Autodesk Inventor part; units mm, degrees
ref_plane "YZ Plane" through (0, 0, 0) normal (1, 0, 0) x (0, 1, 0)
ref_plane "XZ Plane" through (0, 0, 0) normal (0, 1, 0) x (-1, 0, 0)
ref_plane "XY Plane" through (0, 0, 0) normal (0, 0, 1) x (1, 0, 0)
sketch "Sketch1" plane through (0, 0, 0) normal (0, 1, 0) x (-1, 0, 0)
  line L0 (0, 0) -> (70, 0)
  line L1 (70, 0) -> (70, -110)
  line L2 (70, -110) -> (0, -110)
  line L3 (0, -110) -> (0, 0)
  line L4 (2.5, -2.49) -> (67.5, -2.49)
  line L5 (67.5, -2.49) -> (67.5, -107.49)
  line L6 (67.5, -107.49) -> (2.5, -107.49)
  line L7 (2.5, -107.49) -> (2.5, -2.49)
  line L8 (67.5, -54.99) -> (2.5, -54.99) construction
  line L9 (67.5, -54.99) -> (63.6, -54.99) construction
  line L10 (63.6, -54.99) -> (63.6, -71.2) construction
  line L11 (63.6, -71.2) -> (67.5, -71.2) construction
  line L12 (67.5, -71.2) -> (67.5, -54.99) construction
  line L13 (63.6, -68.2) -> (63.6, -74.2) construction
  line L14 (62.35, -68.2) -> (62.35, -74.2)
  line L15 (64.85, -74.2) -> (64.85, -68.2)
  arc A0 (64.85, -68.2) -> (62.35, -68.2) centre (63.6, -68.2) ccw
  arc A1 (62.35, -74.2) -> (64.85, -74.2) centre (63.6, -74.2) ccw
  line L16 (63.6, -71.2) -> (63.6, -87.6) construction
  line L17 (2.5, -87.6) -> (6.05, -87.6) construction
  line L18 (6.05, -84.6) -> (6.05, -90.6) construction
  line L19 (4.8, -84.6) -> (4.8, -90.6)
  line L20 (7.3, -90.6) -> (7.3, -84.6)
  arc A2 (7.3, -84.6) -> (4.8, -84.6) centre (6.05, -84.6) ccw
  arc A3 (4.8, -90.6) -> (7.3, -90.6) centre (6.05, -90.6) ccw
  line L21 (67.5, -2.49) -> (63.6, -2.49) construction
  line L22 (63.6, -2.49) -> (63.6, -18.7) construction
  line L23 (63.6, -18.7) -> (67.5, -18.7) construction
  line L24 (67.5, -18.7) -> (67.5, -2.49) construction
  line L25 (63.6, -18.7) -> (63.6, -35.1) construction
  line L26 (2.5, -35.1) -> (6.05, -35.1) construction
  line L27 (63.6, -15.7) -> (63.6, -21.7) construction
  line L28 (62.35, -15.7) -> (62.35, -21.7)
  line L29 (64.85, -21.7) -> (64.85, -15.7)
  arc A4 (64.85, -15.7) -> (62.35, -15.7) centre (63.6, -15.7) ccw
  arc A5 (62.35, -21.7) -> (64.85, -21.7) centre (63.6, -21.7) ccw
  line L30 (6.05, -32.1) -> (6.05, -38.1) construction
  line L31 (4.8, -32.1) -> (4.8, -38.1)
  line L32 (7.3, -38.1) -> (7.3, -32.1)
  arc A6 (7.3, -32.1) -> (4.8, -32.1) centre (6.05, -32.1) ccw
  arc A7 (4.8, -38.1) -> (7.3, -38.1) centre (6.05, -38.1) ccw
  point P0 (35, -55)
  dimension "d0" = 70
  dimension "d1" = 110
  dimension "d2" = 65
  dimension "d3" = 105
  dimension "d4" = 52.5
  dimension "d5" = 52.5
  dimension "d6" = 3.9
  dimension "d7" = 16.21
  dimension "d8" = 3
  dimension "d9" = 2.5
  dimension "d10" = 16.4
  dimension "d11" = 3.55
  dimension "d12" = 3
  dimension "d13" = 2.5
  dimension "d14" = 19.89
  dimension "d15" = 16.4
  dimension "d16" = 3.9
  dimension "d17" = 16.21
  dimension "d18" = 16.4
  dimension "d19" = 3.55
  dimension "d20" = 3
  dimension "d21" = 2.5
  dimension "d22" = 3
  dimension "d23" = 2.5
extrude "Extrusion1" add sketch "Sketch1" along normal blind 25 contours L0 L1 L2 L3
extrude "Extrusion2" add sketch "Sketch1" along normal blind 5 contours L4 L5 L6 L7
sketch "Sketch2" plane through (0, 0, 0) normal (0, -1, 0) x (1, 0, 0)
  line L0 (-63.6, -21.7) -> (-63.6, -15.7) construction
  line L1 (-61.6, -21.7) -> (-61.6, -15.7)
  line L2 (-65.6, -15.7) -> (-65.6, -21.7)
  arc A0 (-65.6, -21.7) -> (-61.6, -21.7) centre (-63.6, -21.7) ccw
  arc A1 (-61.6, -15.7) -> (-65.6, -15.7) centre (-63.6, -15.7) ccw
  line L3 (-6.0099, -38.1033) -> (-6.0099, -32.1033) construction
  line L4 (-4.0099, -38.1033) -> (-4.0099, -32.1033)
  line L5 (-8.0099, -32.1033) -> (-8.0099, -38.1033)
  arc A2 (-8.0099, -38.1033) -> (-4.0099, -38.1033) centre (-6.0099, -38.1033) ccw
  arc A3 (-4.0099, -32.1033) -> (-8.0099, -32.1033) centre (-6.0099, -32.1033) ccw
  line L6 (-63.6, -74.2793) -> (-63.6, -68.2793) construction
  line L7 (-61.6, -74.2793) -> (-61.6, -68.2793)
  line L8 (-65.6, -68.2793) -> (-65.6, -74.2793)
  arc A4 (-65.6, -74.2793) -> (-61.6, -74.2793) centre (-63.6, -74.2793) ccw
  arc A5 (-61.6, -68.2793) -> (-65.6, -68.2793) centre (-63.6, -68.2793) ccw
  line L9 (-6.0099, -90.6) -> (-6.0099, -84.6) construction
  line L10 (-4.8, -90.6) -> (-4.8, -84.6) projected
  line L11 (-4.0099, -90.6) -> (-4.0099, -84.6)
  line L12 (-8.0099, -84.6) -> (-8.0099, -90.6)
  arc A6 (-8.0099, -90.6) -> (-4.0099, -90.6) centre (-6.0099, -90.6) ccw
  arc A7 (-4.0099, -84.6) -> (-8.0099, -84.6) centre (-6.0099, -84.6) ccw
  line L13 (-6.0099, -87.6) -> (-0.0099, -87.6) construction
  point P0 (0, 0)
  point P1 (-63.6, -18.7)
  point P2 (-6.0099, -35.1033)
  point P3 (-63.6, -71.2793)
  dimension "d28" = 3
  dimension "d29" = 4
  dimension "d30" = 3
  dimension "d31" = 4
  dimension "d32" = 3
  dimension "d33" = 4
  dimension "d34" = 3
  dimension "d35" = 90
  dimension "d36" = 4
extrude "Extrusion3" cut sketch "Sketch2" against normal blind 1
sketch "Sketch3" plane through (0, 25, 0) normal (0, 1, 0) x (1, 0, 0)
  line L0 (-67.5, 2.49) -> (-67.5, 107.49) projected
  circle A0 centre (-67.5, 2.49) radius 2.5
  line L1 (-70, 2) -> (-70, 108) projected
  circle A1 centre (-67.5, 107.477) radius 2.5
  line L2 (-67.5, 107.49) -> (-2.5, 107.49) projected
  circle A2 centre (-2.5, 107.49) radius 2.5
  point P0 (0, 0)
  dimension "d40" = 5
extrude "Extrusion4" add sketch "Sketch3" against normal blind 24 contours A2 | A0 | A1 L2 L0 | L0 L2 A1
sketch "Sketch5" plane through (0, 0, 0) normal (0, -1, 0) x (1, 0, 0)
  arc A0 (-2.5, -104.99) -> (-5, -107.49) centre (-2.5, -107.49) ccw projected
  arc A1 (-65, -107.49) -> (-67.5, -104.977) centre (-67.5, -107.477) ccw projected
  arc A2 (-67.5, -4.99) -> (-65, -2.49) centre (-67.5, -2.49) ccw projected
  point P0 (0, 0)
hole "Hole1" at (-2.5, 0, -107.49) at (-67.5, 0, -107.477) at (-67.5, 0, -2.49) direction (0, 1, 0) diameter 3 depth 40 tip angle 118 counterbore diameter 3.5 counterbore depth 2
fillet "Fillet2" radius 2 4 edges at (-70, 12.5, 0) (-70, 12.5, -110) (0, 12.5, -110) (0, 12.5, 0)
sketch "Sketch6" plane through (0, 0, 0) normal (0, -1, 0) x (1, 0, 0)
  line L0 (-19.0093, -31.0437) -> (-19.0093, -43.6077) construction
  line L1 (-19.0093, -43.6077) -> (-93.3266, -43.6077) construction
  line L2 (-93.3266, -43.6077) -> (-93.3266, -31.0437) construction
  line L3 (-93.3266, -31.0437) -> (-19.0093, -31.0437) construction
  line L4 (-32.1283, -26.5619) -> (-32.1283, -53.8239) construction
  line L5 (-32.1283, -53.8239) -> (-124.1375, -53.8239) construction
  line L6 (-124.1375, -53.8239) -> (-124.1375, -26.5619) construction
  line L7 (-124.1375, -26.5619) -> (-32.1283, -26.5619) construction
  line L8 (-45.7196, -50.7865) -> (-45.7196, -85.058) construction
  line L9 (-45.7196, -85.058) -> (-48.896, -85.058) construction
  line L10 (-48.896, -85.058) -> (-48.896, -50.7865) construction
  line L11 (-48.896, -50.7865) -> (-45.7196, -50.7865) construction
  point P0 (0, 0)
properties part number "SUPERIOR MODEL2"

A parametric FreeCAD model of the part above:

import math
import FreeCAD as App
import Part
import Sketcher

V = App.Vector


def edges_at(feature, points):
    """Names of the edges that pass closest to the given points."""
    edges = feature.Shape.Edges
    near = lambda p: min(range(len(edges)), key=lambda i: edges[i].distToShape(Part.Vertex(*p))[0])
    return sorted({f"Edge{near(p) + 1}" for p in points})

doc = App.newDocument("Part")
params = doc.addObject("Spreadsheet::Sheet", "Params")
for row, (alias, value) in enumerate([
    ("sketch1_width", "70 mm"),
    ("sketch1_width2", "65 mm"),
    ("sketch1_height", "110 mm"),
    ("sketch1_height2", "105 mm"),
    ("pad1_length", "25 mm"),
    ("sketch2_width", "65 mm"),
    ("sketch2_height", "105 mm"),
    ("sketch2_radius", "1.25 mm"),
    ("sketch2_height2", "6 mm"),
    ("pad2_length", "5 mm"),
    ("sketch3_radius", "2 mm"),
    ("sketch3_height", "6 mm"),
    ("pocket1_length", "1 mm"),
    ("sketch4_diameter", "5 mm"),
    ("pad3_length", "24 mm"),
    ("sketch5_diameter", "3 mm"),
    ("hole_diameter", "3 mm"),
    ("hole_depth", "40 mm"),
    ("hole_cbore_diameter", "3.5 mm"),
    ("hole_cbore_depth", "2 mm"),
    ("fillet_radius", "2 mm"),
], start=1):
    params.set(f"A{row}", alias)
    params.set(f"B{row}", "=" + value)
    params.setAlias(f"B{row}", alias)

body = doc.addObject("PartDesign::Body", "Body")

sketch1 = body.newObject("Sketcher::SketchObject", "Sketch")
sketch1.AttachmentSupport = (doc.getObject("XZ_Plane"), [""])
sketch1.MapMode = "FlatFace"
sketch1.addGeometry(Part.LineSegment(V(-70, 0, 0), V(0, 0, 0)), False)
sketch1.addGeometry(Part.LineSegment(V(0, 0, 0), V(0, -110, 0)), False)
sketch1.addGeometry(Part.LineSegment(V(0, -110, 0), V(-70, -110, 0)), False)
sketch1.addGeometry(Part.LineSegment(V(-70, -110, 0), V(-70, 0, 0)), False)
sketch1.addGeometry(Part.LineSegment(V(-2, -107, 0), V(-2, -2, 0)), False)
sketch1.addGeometry(Part.LineSegment(V(-2, -2, 0), V(-68, -2, 0)), False)
sketch1.addGeometry(Part.LineSegment(V(-68, -2, 0), V(-68, -107, 0)), False)
sketch1.addGeometry(Part.LineSegment(V(-68, -107, 0), V(-2, -107, 0)), False)
sketch1.addConstraint(Sketcher.Constraint("Coincident", 0, 2, 1, 1))
sketch1.addConstraint(Sketcher.Constraint("Coincident", 1, 2, 2, 1))
sketch1.addConstraint(Sketcher.Constraint("Coincident", 2, 2, 3, 1))
sketch1.addConstraint(Sketcher.Constraint("Coincident", 3, 2, 0, 1))
sketch1.addConstraint(Sketcher.Constraint("Coincident", 4, 2, 5, 1))
sketch1.addConstraint(Sketcher.Constraint("Coincident", 5, 2, 6, 1))
sketch1.addConstraint(Sketcher.Constraint("Coincident", 6, 2, 7, 1))
sketch1.addConstraint(Sketcher.Constraint("Coincident", 7, 2, 4, 1))
sketch1.addConstraint(Sketcher.Constraint("Horizontal", 0))
sketch1.addConstraint(Sketcher.Constraint("Vertical", 1))
sketch1.addConstraint(Sketcher.Constraint("Horizontal", 2))
sketch1.addConstraint(Sketcher.Constraint("Vertical", 3))
sketch1.addConstraint(Sketcher.Constraint("Vertical", 4))
sketch1.addConstraint(Sketcher.Constraint("Horizontal", 5))
sketch1.addConstraint(Sketcher.Constraint("Vertical", 6))
sketch1.addConstraint(Sketcher.Constraint("Horizontal", 7))
sketch1.addConstraint(Sketcher.Constraint("Coincident", 0, 2, -1, 1))
sketch1.addConstraint(Sketcher.Constraint("DistanceX", 0, 1, 0, 2, 70.0))
sketch1.addConstraint(Sketcher.Constraint("DistanceX", 5, 2, 5, 1, 65.0))
sketch1.addConstraint(Sketcher.Constraint("DistanceY", 1, 2, 1, 1, 110.0))
sketch1.addConstraint(Sketcher.Constraint("DistanceY", 4, 1, 4, 2, 105.0))
sketch1.addConstraint(Sketcher.Constraint("DistanceX", 4, 2, -1, 1, 2.5))
sketch1.addConstraint(Sketcher.Constraint("DistanceY", 4, 2, -1, 1, 2.49))
sketch1.setExpression("Constraints[17]", "Params.sketch1_width")
sketch1.setExpression("Constraints[18]", "Params.sketch1_width2")
sketch1.setExpression("Constraints[19]", "Params.sketch1_height")
sketch1.setExpression("Constraints[20]", "Params.sketch1_height2")
pad1 = body.newObject("PartDesign::Pad", "Pad")
pad1.Profile = sketch1
pad1.setExpression("Length", "Params.pad1_length")
pad1.Reversed = True

sketch2 = body.newObject("Sketcher::SketchObject", "Sketch001")
sketch2.AttachmentSupport = (doc.getObject("XZ_Plane"), [""])
sketch2.MapMode = "FlatFace"
sketch2.addGeometry(Part.LineSegment(V(-67.5, -2.5, 0), V(-2.5, -2.5, 0)), False)
sketch2.addGeometry(Part.LineSegment(V(-2.5, -2.5, 0), V(-2.5, -107.5, 0)), False)
sketch2.addGeometry(Part.LineSegment(V(-2.5, -107.5, 0), V(-67.5, -107.5, 0)), False)
sketch2.addGeometry(Part.LineSegment(V(-67.5, -107.5, 0), V(-67.5, -2.5, 0)), False)
sketch2.addGeometry(Part.LineSegment(V(-4.8, -90.6, 0), V(-4.8, -84.6, 0)), False)
sketch2.addGeometry(Part.ArcOfCircle(Part.Circle(V(-6, -84.6, 0), V(0, 0, 1), 1.2), math.radians(0), math.radians(180)), False)
sketch2.addGeometry(Part.LineSegment(V(-7.3, -84.6, 0), V(-7.3, -90.6, 0)), False)
sketch2.addGeometry(Part.ArcOfCircle(Part.Circle(V(-6, -90.6, 0), V(0, 0, 1), 1.2), math.radians(180), math.radians(360)), False)
sketch2.addGeometry(Part.LineSegment(V(-62.4, -74.2, 0), V(-62.4, -68.2, 0)), False)
sketch2.addGeometry(Part.ArcOfCircle(Part.Circle(V(-63.6, -68.2, 0), V(0, 0, 1), 1.2), math.radians(0), math.radians(180)), False)
sketch2.addGeometry(Part.LineSegment(V(-64.8, -68.2, 0), V(-64.8, -74.2, 0)), False)
sketch2.addGeometry(Part.ArcOfCircle(Part.Circle(V(-63.6, -74.2, 0), V(0, 0, 1), 1.2), math.radians(180), math.radians(360)), False)
sketch2.addGeometry(Part.LineSegment(V(-4.8, -38.1, 0), V(-4.8, -32.1, 0)), False)
sketch2.addGeometry(Part.ArcOfCircle(Part.Circle(V(-6, -32.1, 0), V(0, 0, 1), 1.2), math.radians(0), math.radians(180)), False)
sketch2.addGeometry(Part.LineSegment(V(-7.3, -32.1, 0), V(-7.3, -38.1, 0)), False)
sketch2.addGeometry(Part.ArcOfCircle(Part.Circle(V(-6, -38.1, 0), V(0, 0, 1), 1.2), math.radians(180), math.radians(360)), False)
sketch2.addGeometry(Part.LineSegment(V(-62.4, -21.7, 0), V(-62.4, -15.7, 0)), False)
sketch2.addGeometry(Part.ArcOfCircle(Part.Circle(V(-63.6, -15.7, 0), V(0, 0, 1), 1.2), math.radians(0), math.radians(180)), False)
sketch2.addGeometry(Part.LineSegment(V(-64.8, -15.7, 0), V(-64.8, -21.7, 0)), False)
sketch2.addGeometry(Part.ArcOfCircle(Part.Circle(V(-63.6, -21.7, 0), V(0, 0, 1), 1.2), math.radians(180), math.radians(360)), False)
sketch2.addConstraint(Sketcher.Constraint("Coincident", 0, 2, 1, 1))
sketch2.addConstraint(Sketcher.Constraint("Coincident", 1, 2, 2, 1))
sketch2.addConstraint(Sketcher.Constraint("Coincident", 2, 2, 3, 1))
sketch2.addConstraint(Sketcher.Constraint("Coincident", 3, 2, 0, 1))
sketch2.addConstraint(Sketcher.Constraint("Tangent", 4, 2, 5, 1))
sketch2.addConstraint(Sketcher.Constraint("Tangent", 5, 2, 6, 1))
sketch2.addConstraint(Sketcher.Constraint("Tangent", 6, 2, 7, 1))
sketch2.addConstraint(Sketcher.Constraint("Tangent", 7, 2, 4, 1))
sketch2.addConstraint(Sketcher.Constraint("Tangent", 8, 2, 9, 1))
sketch2.addConstraint(Sketcher.Constraint("Tangent", 9, 2, 10, 1))
sketch2.addConstraint(Sketcher.Constraint("Tangent", 10, 2, 11, 1))
sketch2.addConstraint(Sketcher.Constraint("Tangent", 11, 2, 8, 1))
sketch2.addConstraint(Sketcher.Constraint("Tangent", 12, 2, 13, 1))
sketch2.addConstraint(Sketcher.Constraint("Tangent", 13, 2, 14, 1))
sketch2.addConstraint(Sketcher.Constraint("Tangent", 14, 2, 15, 1))
sketch2.addConstraint(Sketcher.Constraint("Tangent", 15, 2, 12, 1))
sketch2.addConstraint(Sketcher.Constraint("Tangent", 16, 2, 17, 1))
sketch2.addConstraint(Sketcher.Constraint("Tangent", 17, 2, 18, 1))
sketch2.addConstraint(Sketcher.Constraint("Tangent", 18, 2, 19, 1))
sketch2.addConstraint(Sketcher.Constraint("Tangent", 19, 2, 16, 1))
sketch2.addConstraint(Sketcher.Constraint("Horizontal", 0))
sketch2.addConstraint(Sketcher.Constraint("Vertical", 1))
sketch2.addConstraint(Sketcher.Constraint("Horizontal", 2))
sketch2.addConstraint(Sketcher.Constraint("Vertical", 3))
sketch2.addConstraint(Sketcher.Constraint("Vertical", 4))
sketch2.addConstraint(Sketcher.Constraint("Vertical", 6))
sketch2.addConstraint(Sketcher.Constraint("Vertical", 8))
sketch2.addConstraint(Sketcher.Constraint("Vertical", 10))
sketch2.addConstraint(Sketcher.Constraint("Vertical", 12))
sketch2.addConstraint(Sketcher.Constraint("Vertical", 14))
sketch2.addConstraint(Sketcher.Constraint("Vertical", 16))
sketch2.addConstraint(Sketcher.Constraint("Vertical", 18))
sketch2.addConstraint(Sketcher.Constraint("Equal", 7, 9))
sketch2.addConstraint(Sketcher.Constraint("Equal", 11, 13))
sketch2.addConstraint(Sketcher.Constraint("Equal", 15, 17))
sketch2.addConstraint(Sketcher.Constraint("Vertical", 7, 3, 13, 3))
sketch2.addConstraint(Sketcher.Constraint("Vertical", 11, 3, 17, 3))
sketch2.addConstraint(Sketcher.Constraint("Equal", 6, 8))
sketch2.addConstraint(Sketcher.Constraint("Equal", 10, 12))
sketch2.addConstraint(Sketcher.Constraint("Equal", 14, 16))
sketch2.addConstraint(Sketcher.Constraint("DistanceX", 0, 1, 0, 2, 65.0))
sketch2.addConstraint(Sketcher.Constraint("DistanceY", 1, 2, 1, 1, 105.0))
sketch2.addConstraint(Sketcher.Constraint("Radius", 5, 1.25))
sketch2.addConstraint(Sketcher.Constraint("DistanceX", 0, 2, -1, 1, 2.5))
sketch2.addConstraint(Sketcher.Constraint("DistanceY", 5, 3, 9, 3, 16.4))
sketch2.addConstraint(Sketcher.Constraint("DistanceY", 5, 3, 13, 3, 52.5))
sketch2.addConstraint(Sketcher.Constraint("DistanceY", 9, 3, 17, 3, 52.5))
sketch2.addConstraint(Sketcher.Constraint("DistanceX", 2, 2, 11, 3, 3.9))
sketch2.addConstraint(Sketcher.Constraint("DistanceY", 4, 1, 4, 2, 6.0))
sketch2.addConstraint(Sketcher.Constraint("DistanceX", 13, 3, 0, 2, 3.55))
sketch2.addConstraint(Sketcher.Constraint("DistanceY", 5, 3, -1, 1, 84.6))
sketch2.addConstraint(Sketcher.Constraint("DistanceY", 0, 2, -1, 1, 2.49))
sketch2.setExpression("Constraints[40]", "Params.sketch2_width")
sketch2.setExpression("Constraints[41]", "Params.sketch2_height")
sketch2.setExpression("Constraints[42]", "Params.sketch2_radius")
sketch2.setExpression("Constraints[48]", "Params.sketch2_height2")
pad2 = body.newObject("PartDesign::Pad", "Pad001")
pad2.Profile = sketch2
pad2.setExpression("Length", "Params.pad2_length")
pad2.Reversed = True

sketch3 = body.newObject("Sketcher::SketchObject", "Sketch002")
sketch3.AttachmentSupport = (doc.getObject("XZ_Plane"), [""])
sketch3.MapMode = "FlatFace"
sketch3.addGeometry(Part.ArcOfCircle(Part.Circle(V(-63.6, -21.7, 0), V(0, 0, 1), 2), math.radians(180), math.radians(360)), False)
sketch3.addGeometry(Part.LineSegment(V(-61.6, -21.7, 0), V(-61.6, -15.7, 0)), False)
sketch3.addGeometry(Part.ArcOfCircle(Part.Circle(V(-63.6, -15.7, 0), V(0, 0, 1), 2), math.radians(0), math.radians(180)), False)
sketch3.addGeometry(Part.LineSegment(V(-65.6, -15.7, 0), V(-65.6, -21.7, 0)), False)
sketch3.addGeometry(Part.ArcOfCircle(Part.Circle(V(-6, -38.1, 0), V(0, 0, 1), 2), math.radians(180), math.radians(360)), False)
sketch3.addGeometry(Part.LineSegment(V(-4, -38.1, 0), V(-4, -32.1, 0)), False)
sketch3.addGeometry(Part.ArcOfCircle(Part.Circle(V(-6, -32.1, 0), V(0, 0, 1), 2), math.radians(0), math.radians(180)), False)
sketch3.addGeometry(Part.LineSegment(V(-8, -32.1, 0), V(-8, -38.1, 0)), False)
sketch3.addGeometry(Part.ArcOfCircle(Part.Circle(V(-63.6, -74.3, 0), V(0, 0, 1), 2), math.radians(180), math.radians(360)), False)
sketch3.addGeometry(Part.LineSegment(V(-61.6, -74.3, 0), V(-61.6, -68.3, 0)), False)
sketch3.addGeometry(Part.ArcOfCircle(Part.Circle(V(-63.6, -68.3, 0), V(0, 0, 1), 2), math.radians(0), math.radians(180)), False)
sketch3.addGeometry(Part.LineSegment(V(-65.6, -68.3, 0), V(-65.6, -74.3, 0)), False)
sketch3.addGeometry(Part.ArcOfCircle(Part.Circle(V(-6, -90.6, 0), V(0, 0, 1), 2), math.radians(180), math.radians(360)), False)
sketch3.addGeometry(Part.LineSegment(V(-4, -90.6, 0), V(-4, -84.6, 0)), False)
sketch3.addGeometry(Part.ArcOfCircle(Part.Circle(V(-6, -84.6, 0), V(0, 0, 1), 2), math.radians(0), math.radians(180)), False)
sketch3.addGeometry(Part.LineSegment(V(-8, -84.6, 0), V(-8, -90.6, 0)), False)
sketch3.addConstraint(Sketcher.Constraint("Tangent", 0, 2, 1, 1))
sketch3.addConstraint(Sketcher.Constraint("Tangent", 1, 2, 2, 1))
sketch3.addConstraint(Sketcher.Constraint("Tangent", 2, 2, 3, 1))
sketch3.addConstraint(Sketcher.Constraint("Tangent", 3, 2, 0, 1))
sketch3.addConstraint(Sketcher.Constraint("Tangent", 4, 2, 5, 1))
sketch3.addConstraint(Sketcher.Constraint("Tangent", 5, 2, 6, 1))
sketch3.addConstraint(Sketcher.Constraint("Tangent", 6, 2, 7, 1))
sketch3.addConstraint(Sketcher.Constraint("Tangent", 7, 2, 4, 1))
sketch3.addConstraint(Sketcher.Constraint("Tangent", 8, 2, 9, 1))
sketch3.addConstraint(Sketcher.Constraint("Tangent", 9, 2, 10, 1))
sketch3.addConstraint(Sketcher.Constraint("Tangent", 10, 2, 11, 1))
sketch3.addConstraint(Sketcher.Constraint("Tangent", 11, 2, 8, 1))
sketch3.addConstraint(Sketcher.Constraint("Tangent", 12, 2, 13, 1))
sketch3.addConstraint(Sketcher.Constraint("Tangent", 13, 2, 14, 1))
sketch3.addConstraint(Sketcher.Constraint("Tangent", 14, 2, 15, 1))
sketch3.addConstraint(Sketcher.Constraint("Tangent", 15, 2, 12, 1))
sketch3.addConstraint(Sketcher.Constraint("Vertical", 1))
sketch3.addConstraint(Sketcher.Constraint("Vertical", 3))
sketch3.addConstraint(Sketcher.Constraint("Vertical", 5))
sketch3.addConstraint(Sketcher.Constraint("Vertical", 7))
sketch3.addConstraint(Sketcher.Constraint("Vertical", 9))
sketch3.addConstraint(Sketcher.Constraint("Vertical", 11))
sketch3.addConstraint(Sketcher.Constraint("Vertical", 13))
sketch3.addConstraint(Sketcher.Constraint("Vertical", 15))
sketch3.addConstraint(Sketcher.Constraint("Equal", 2, 4))
sketch3.addConstraint(Sketcher.Constraint("Equal", 6, 8))
sketch3.addConstraint(Sketcher.Constraint("Equal", 10, 12))
sketch3.addConstraint(Sketcher.Constraint("Vertical", 2, 3, 8, 3))
sketch3.addConstraint(Sketcher.Constraint("Vertical", 6, 3, 12, 3))
sketch3.addConstraint(Sketcher.Constraint("Equal", 3, 5))
sketch3.addConstraint(Sketcher.Constraint("Equal", 7, 9))
sketch3.addConstraint(Sketcher.Constraint("Equal", 11, 13))
sketch3.addConstraint(Sketcher.Constraint("Radius", 0, 2.0))
sketch3.addConstraint(Sketcher.Constraint("DistanceY", 1, 1, 1, 2, 6.0))
sketch3.addConstraint(Sketcher.Constraint("DistanceX", 0, 3, -1, 1, 63.6))
sketch3.addConstraint(Sketcher.Constraint("DistanceY", 0, 3, -1, 1, 21.7))
sketch3.addConstraint(Sketcher.Constraint("DistanceY", 12, 3, -1, 1, 90.6))
sketch3.addConstraint(Sketcher.Constraint("DistanceX", 4, 3, -1, 1, 6.01))
sketch3.addConstraint(Sketcher.Constraint("DistanceY", 8, 3, 4, 3, 36.176))
sketch3.addConstraint(Sketcher.Constraint("DistanceY", 4, 3, -1, 1, 38.1033))
sketch3.setExpression("Constraints[32]", "Params.sketch3_radius")
sketch3.setExpression("Constraints[33]", "Params.sketch3_height")
pocket1 = body.newObject("PartDesign::Pocket", "Pocket")
pocket1.Profile = sketch3
pocket1.setExpression("Length", "Params.pocket1_length")

sketch4 = body.newObject("Sketcher::SketchObject", "Sketch003")
sketch4.AttachmentSupport = (doc.getObject("XZ_Plane"), [""])
sketch4.MapMode = "FlatFace"
sketch4.AttachmentOffset = App.Placement(V(0, 0, -25), App.Rotation())
sketch4.addGeometry(Part.Circle(V(-2.5, -107.5, 0), V(0, 0, 1), 2.5), False)
sketch4.addGeometry(Part.Circle(V(-67.5, -2.5, 0), V(0, 0, 1), 2.5), False)
sketch4.addGeometry(Part.Circle(V(-67.5, -107.5, 0), V(0, 0, 1), 2.5), False)
sketch4.addConstraint(Sketcher.Constraint("Equal", 0, 1))
sketch4.addConstraint(Sketcher.Constraint("Equal", 1, 2))
sketch4.addConstraint(Sketcher.Constraint("Vertical", 1, 3, 2, 3))
sketch4.addConstraint(Sketcher.Constraint("Diameter", 0, 5.0))
sketch4.addConstraint(Sketcher.Constraint("DistanceX", 1, 3, 0, 3, 65.0))
sketch4.addConstraint(Sketcher.Constraint("DistanceY", 0, 3, 1, 3, 105.0))
sketch4.addConstraint(Sketcher.Constraint("DistanceX", 0, 3, -1, 1, 2.5))
sketch4.addConstraint(Sketcher.Constraint("DistanceY", 0, 3, -1, 1, 107.49))
sketch4.addConstraint(Sketcher.Constraint("DistanceY", 2, 3, -1, 1, 107.477))
sketch4.setExpression("Constraints[3]", "Params.sketch4_diameter")
pad3 = body.newObject("PartDesign::Pad", "Pad002")
pad3.Profile = sketch4
pad3.setExpression("Length", "Params.pad3_length")

sketch5 = body.newObject("Sketcher::SketchObject", "Sketch004")
sketch5.AttachmentSupport = (doc.getObject("XZ_Plane"), [""])
sketch5.MapMode = "FlatFace"
sketch5.addGeometry(Part.Circle(V(-2.5, -107.5, 0), V(0, 0, 1), 1.5), False)
sketch5.addGeometry(Part.Circle(V(-67.5, -107.5, 0), V(0, 0, 1), 1.5), False)
sketch5.addGeometry(Part.Circle(V(-67.5, -2.5, 0), V(0, 0, 1), 1.5), False)
sketch5.addConstraint(Sketcher.Constraint("Equal", 0, 1))
sketch5.addConstraint(Sketcher.Constraint("Equal", 1, 2))
sketch5.addConstraint(Sketcher.Constraint("Vertical", 1, 3, 2, 3))
sketch5.addConstraint(Sketcher.Constraint("Diameter", 0, 3.0))
sketch5.addConstraint(Sketcher.Constraint("DistanceX", 1, 3, 0, 3, 65.0))
sketch5.addConstraint(Sketcher.Constraint("DistanceY", 0, 3, 2, 3, 105.0))
sketch5.addConstraint(Sketcher.Constraint("DistanceX", 0, 3, -1, 1, 2.5))
sketch5.addConstraint(Sketcher.Constraint("DistanceY", 0, 3, -1, 1, 107.49))
sketch5.addConstraint(Sketcher.Constraint("DistanceY", 1, 3, -1, 1, 107.477))
sketch5.setExpression("Constraints[3]", "Params.sketch5_diameter")
doc.recompute()
hole = body.newObject("PartDesign::Hole", "Hole")
hole.Profile = sketch5
hole.ThreadType = "None"
hole.setExpression("Diameter", "Params.hole_diameter")
hole.DepthType = "Dimension"
hole.setExpression("Depth", "Params.hole_depth")
hole.DrillPoint = "Angled"
hole.DrillPointAngle = 118
hole.HoleCutType = "Counterbore"
hole.setExpression("HoleCutDiameter", "Params.hole_cbore_diameter")
hole.setExpression("HoleCutDepth", "Params.hole_cbore_depth")
doc.recompute()

fillet = body.newObject("PartDesign::Fillet", "Fillet")
fillet.Base = (hole, edges_at(hole, [
    (-70, 12.5, 0),
    (-70, 12.5, -110),
    (0, 12.5, -110),
    (0, 12.5, 0),
]))
fillet.setExpression("Radius", "Params.fillet_radius")

doc.recompute()
